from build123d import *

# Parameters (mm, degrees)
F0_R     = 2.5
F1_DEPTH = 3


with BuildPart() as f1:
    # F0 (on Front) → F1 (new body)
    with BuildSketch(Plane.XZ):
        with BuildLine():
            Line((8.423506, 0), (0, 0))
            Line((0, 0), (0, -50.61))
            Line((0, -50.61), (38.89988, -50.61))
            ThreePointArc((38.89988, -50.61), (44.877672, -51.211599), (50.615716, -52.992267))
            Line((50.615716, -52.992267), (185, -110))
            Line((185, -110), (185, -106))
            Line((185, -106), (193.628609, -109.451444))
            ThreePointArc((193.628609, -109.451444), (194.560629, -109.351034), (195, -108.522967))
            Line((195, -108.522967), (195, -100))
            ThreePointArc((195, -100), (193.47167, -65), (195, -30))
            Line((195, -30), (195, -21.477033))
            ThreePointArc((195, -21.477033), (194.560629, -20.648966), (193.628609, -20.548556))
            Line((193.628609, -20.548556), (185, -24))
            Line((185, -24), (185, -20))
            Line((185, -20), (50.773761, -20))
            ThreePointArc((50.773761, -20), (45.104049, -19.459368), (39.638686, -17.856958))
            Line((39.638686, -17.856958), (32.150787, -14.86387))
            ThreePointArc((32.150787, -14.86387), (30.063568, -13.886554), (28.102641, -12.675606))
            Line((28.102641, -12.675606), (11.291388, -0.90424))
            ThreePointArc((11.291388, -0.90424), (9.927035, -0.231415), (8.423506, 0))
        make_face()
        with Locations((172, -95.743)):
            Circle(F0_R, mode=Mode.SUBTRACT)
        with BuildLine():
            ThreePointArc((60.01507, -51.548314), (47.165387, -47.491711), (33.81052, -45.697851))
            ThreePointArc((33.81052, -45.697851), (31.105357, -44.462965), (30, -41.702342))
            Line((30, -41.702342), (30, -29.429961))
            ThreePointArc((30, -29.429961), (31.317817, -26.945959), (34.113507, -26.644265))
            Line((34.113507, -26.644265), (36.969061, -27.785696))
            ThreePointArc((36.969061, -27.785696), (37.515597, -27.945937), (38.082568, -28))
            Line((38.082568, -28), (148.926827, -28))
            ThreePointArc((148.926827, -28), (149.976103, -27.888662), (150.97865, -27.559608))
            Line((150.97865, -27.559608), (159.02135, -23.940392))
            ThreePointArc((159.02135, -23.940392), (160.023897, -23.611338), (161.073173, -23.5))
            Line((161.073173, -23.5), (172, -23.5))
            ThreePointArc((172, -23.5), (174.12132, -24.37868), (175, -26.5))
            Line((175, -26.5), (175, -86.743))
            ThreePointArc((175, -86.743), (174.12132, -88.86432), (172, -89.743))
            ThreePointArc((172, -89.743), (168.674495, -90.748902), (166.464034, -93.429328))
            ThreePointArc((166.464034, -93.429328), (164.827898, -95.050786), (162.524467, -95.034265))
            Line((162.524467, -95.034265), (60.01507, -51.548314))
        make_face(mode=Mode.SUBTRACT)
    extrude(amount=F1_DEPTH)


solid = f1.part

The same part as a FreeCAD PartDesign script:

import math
import FreeCAD as App
import Part
import Sketcher
from FreeCAD import Vector
Q = App.Units.Quantity

doc = App.newDocument("Part")
params = doc.addObject("Spreadsheet::Sheet", "Params")
for row, (alias, value) in enumerate([
    ("sketch1_diameter", "5 mm"),
    ("sketch1_radius", "1.000001 mm"),
    ("sketch1_radius2", "1.000001 mm"),
    ("sketch1_radius3", "4 mm"),
    ("sketch1_radius4", "2.999999 mm"),
    ("pad1_length", "3 mm"),
], start=1):
    params.set(f"A{row}", alias)
    params.set(f"B{row}", "=" + value)
    params.setAlias(f"B{row}", alias)

body = doc.addObject("PartDesign::Body", "Body")

# Sketch on XZ plane
sketch1 = doc.addObject("Sketcher::SketchObject", "Sketch")
body.addObject(sketch1)
sketch1.AttachmentSupport = (doc.XZ_Plane, [""])
sketch1.MapMode = "FlatFace"
sketch1.addGeometry([
    Part.LineSegment(Vector(8.423506, 0, 0), Vector(0, 0, 0)),  # 0
    Part.LineSegment(Vector(0, 0, 0), Vector(0, -50.61, 0)),  # 1
    Part.LineSegment(Vector(0, -50.61, 0), Vector(38.89988, -50.61, 0)),  # 2
    Part.ArcOfCircle(Part.Circle(Vector(38.899877, -80.610013, 0), Vector(0, 0, 1), 30.000013), math.radians(67.012655), math.radians(89.999994)),  # 3
    Part.LineSegment(Vector(50.615716, -52.992267, 0), Vector(185, -110, 0)),  # 4
    Part.LineSegment(Vector(185, -110, 0), Vector(185, -106, 0)),  # 5
    Part.LineSegment(Vector(185, -106, 0), Vector(193.628609, -109.451444, 0)),  # 6
    Part.ArcOfCircle(Part.Circle(Vector(193.999999, -108.522967, 0), Vector(0, 0, 1), 1.000001), math.radians(-111.801381), math.radians(-0.000023)),  # 7
    Part.LineSegment(Vector(195, -108.522967, 0), Vector(195, -100, 0)),  # 8
    Part.ArcOfCircle(Part.Circle(Vector(595.000068, -65, 0), Vector(0, 0, 1), 401.528398), math.radians(174.999356), math.radians(185.000644)),  # 9
    Part.LineSegment(Vector(195, -30, 0), Vector(195, -21.477033, 0)),  # 10
    Part.ArcOfCircle(Part.Circle(Vector(193.999999, -21.477033, 0), Vector(0, 0, 1), 1.000001), math.radians(0.000023), math.radians(111.801381)),  # 11
    Part.LineSegment(Vector(193.628609, -20.548556, 0), Vector(185, -24, 0)),  # 12
    Part.LineSegment(Vector(185, -24, 0), Vector(185, -20, 0)),  # 13
    Part.LineSegment(Vector(185, -20, 0), Vector(50.773761, -20, 0)),  # 14
    Part.ArcOfCircle(Part.Circle(Vector(50.773762, 10.000005, 0), Vector(0, 0, 1), 30.000005), math.radians(-111.787739), math.radians(-90.000001)),  # 15
    Part.LineSegment(Vector(39.638686, -17.856958, 0), Vector(32.150787, -14.86387, 0)),  # 16
    Part.ArcOfCircle(Part.Circle(Vector(39.574164, 3.70743, 0), Vector(0, 0, 1), 19.999992), math.radians(-124.999995), math.radians(-111.78773)),  # 17
    Part.LineSegment(Vector(28.102641, -12.675606, 0), Vector(11.291388, -0.90424, 0)),  # 18
    Part.ArcOfCircle(Part.Circle(Vector(8.423508, -4.999992, 0), Vector(0, 0, 1), 4.999992), math.radians(54.999967), math.radians(90.000023)),  # 19
    Part.Circle(Vector(172, -95.743, 0), Vector(0, 0, 1), 2.5),  # 20
    Part.LineSegment(Vector(162.524467, -95.034265, 0), Vector(60.01507, -51.548314, 0)),  # 21
    Part.ArcOfCircle(Part.Circle(Vector(30.100718, -123.925312, 0), Vector(0, 0, 1), 78.315377), math.radians(67.544058), math.radians(87.284881)),  # 22
    Part.ArcOfCircle(Part.Circle(Vector(34, -41.702342, 0), Vector(0, 0, 1), 4), math.radians(-179.999995), math.radians(-92.715113)),  # 23
    Part.LineSegment(Vector(30, -41.702342, 0), Vector(30, -29.429961, 0)),  # 24
    Part.ArcOfCircle(Part.Circle(Vector(32.999999, -29.429959, 0), Vector(0, 0, 1), 2.999999), math.radians(68.212236), math.radians(180.000033)),  # 25
    Part.LineSegment(Vector(34.113507, -26.644265, 0), Vector(36.969061, -27.785696, 0)),  # 26
    Part.ArcOfCircle(Part.Circle(Vector(38.082566, -25.000008, 0), Vector(0, 0, 1), 2.999992), math.radians(-111.78776), math.radians(-89.99997)),  # 27
    Part.LineSegment(Vector(38.082568, -28, 0), Vector(148.926827, -28, 0)),  # 28
    Part.ArcOfCircle(Part.Circle(Vector(148.926823, -22.999977, 0), Vector(0, 0, 1), 5.000023), math.radians(-89.999952), math.radians(-65.772323)),  # 29
    Part.LineSegment(Vector(150.97865, -27.559608, 0), Vector(159.02135, -23.940392, 0)),  # 30
    Part.ArcOfCircle(Part.Circle(Vector(161.073177, -28.500023, 0), Vector(0, 0, 1), 5.000023), math.radians(90.000048), math.radians(114.227677)),  # 31
    Part.LineSegment(Vector(161.073173, -23.5, 0), Vector(172, -23.5, 0)),  # 32
    Part.ArcOfCircle(Part.Circle(Vector(171.999999, -26.500001, 0), Vector(0, 0, 1), 3.000001), math.radians(0.000022), math.radians(89.999978)),  # 33
    Part.LineSegment(Vector(175, -26.5, 0), Vector(175, -86.743, 0)),  # 34
    Part.ArcOfCircle(Part.Circle(Vector(171.999999, -86.742999, 0), Vector(0, 0, 1), 3.000001), math.radians(-89.999978), math.radians(-0.000022)),  # 35
    Part.ArcOfCircle(Part.Circle(Vector(172, -95.743, 0), Vector(0, 0, 1), 6), math.radians(90.000003), math.radians(157.31826)),  # 36
    Part.ArcOfCircle(Part.Circle(Vector(163.69605, -92.27249, 0), Vector(0, 0, 1), 3.000002), math.radians(-112.987327), math.radians(-22.681772)),  # 37
], False)
sketch1.addConstraint([
    Sketcher.Constraint("Coincident", 0, 2, 1, 1),
    Sketcher.Constraint("Coincident", 1, 2, 2, 1),
    Sketcher.Constraint("Coincident", 2, 2, 3, 2),
    Sketcher.Constraint("Coincident", 3, 1, 4, 1),
    Sketcher.Constraint("Coincident", 4, 2, 5, 1),
    Sketcher.Constraint("Coincident", 5, 2, 6, 1),
    Sketcher.Constraint("Coincident", 6, 2, 7, 1),
    Sketcher.Constraint("Coincident", 7, 2, 8, 1),
    Sketcher.Constraint("Coincident", 8, 2, 9, 2),
    Sketcher.Constraint("Coincident", 9, 1, 10, 1),
    Sketcher.Constraint("Coincident", 10, 2, 11, 1),
    Sketcher.Constraint("Coincident", 11, 2, 12, 1),
    Sketcher.Constraint("Coincident", 12, 2, 13, 1),
    Sketcher.Constraint("Coincident", 13, 2, 14, 1),
    Sketcher.Constraint("Coincident", 14, 2, 15, 2),
    Sketcher.Constraint("Coincident", 15, 1, 16, 1),
    Sketcher.Constraint("Coincident", 16, 2, 17, 2),
    Sketcher.Constraint("Coincident", 17, 1, 18, 1),
    Sketcher.Constraint("Coincident", 18, 2, 19, 1),
    Sketcher.Constraint("Coincident", 19, 2, 0, 1),
    Sketcher.Constraint("Coincident", 21, 2, 22, 1),
    Sketcher.Constraint("Coincident", 22, 2, 23, 2),
    Sketcher.Constraint("Coincident", 23, 1, 24, 1),
    Sketcher.Constraint("Coincident", 24, 2, 25, 2),
    Sketcher.Constraint("Coincident", 25, 1, 26, 1),
    Sketcher.Constraint("Coincident", 26, 2, 27, 1),
    Sketcher.Constraint("Coincident", 27, 2, 28, 1),
    Sketcher.Constraint("Coincident", 28, 2, 29, 1),
    Sketcher.Constraint("Coincident", 29, 2, 30, 1),
    Sketcher.Constraint("Coincident", 30, 2, 31, 2),
    Sketcher.Constraint("Coincident", 31, 1, 32, 1),
    Sketcher.Constraint("Coincident", 32, 2, 33, 2),
    Sketcher.Constraint("Coincident", 33, 1, 34, 1),
    Sketcher.Constraint("Coincident", 34, 2, 35, 2),
    Sketcher.Constraint("Coincident", 35, 1, 36, 1),
    Sketcher.Constraint("Coincident", 36, 2, 37, 2),
    Sketcher.Constraint("Coincident", 37, 1, 21, 1),
    Sketcher.Constraint("Horizontal", 0),
    Sketcher.Constraint("Vertical", 1),
    Sketcher.Constraint("Horizontal", 2),
    Sketcher.Constraint("Vertical", 5),
    Sketcher.Constraint("Vertical", 8),
    Sketcher.Constraint("Vertical", 10),
    Sketcher.Constraint("Vertical", 13),
    Sketcher.Constraint("Horizontal", 14),
    Sketcher.Constraint("Vertical", 24),
    Sketcher.Constraint("Horizontal", 28),
    Sketcher.Constraint("Horizontal", 32),
    Sketcher.Constraint("Vertical", 34),
    Sketcher.Constraint("Coincident", 0, 2, -1, 1),
    Sketcher.Constraint("Coincident", 36, 3, 20, 3),
    Sketcher.Constraint("Diameter", 20, Q("5 mm")),
    Sketcher.Constraint("Radius", 7, Q("1.000001 mm")),
    Sketcher.Constraint("Radius", 11, Q("1.000001 mm")),
    Sketcher.Constraint("Radius", 23, Q("4 mm")),
    Sketcher.Constraint("Radius", 25, Q("2.999999 mm")),
    Sketcher.Constraint("Radius", 33, Q("3.000001 mm")),
    Sketcher.Constraint("Radius", 35, Q("3.000001 mm")),
    Sketcher.Constraint("Radius", 36, Q("6 mm")),
    Sketcher.Constraint("Radius", 37, Q("3.000002 mm")),
    Sketcher.Constraint("DistanceY", 5, 1, 5, 2, Q("4 mm")),
    Sketcher.Constraint("DistanceY", 13, 1, 13, 2, Q("4 mm")),
    Sketcher.Constraint("DistanceX", -1, 1, 7, 3, Q("193.999999 mm")),
    Sketcher.Constraint("DistanceY", 9, 3, -1, 1, Q("65 mm")),
    Sketcher.Constraint("DistanceX", -1, 1, 11, 3, Q("193.999999 mm")),
    Sketcher.Constraint("DistanceX", -1, 1, 20, 3, Q("172 mm")),
    Sketcher.Constraint("DistanceX", -1, 1, 23, 3, Q("34 mm")),
    Sketcher.Constraint("DistanceX", -1, 1, 33, 3, Q("171.999999 mm")),
    Sketcher.Constraint("DistanceX", -1, 1, 4, 2, Q("185 mm")),
    Sketcher.Constraint("DistanceY", 4, 2, -1, 1, Q("110 mm")),
    Sketcher.Constraint("DistanceY", 8, 2, -1, 1, Q("100 mm")),
    Sketcher.Constraint("DistanceX", -1, 1, 12, 2, Q("185 mm")),
    Sketcher.Constraint("DistanceY", 12, 2, -1, 1, Q("24 mm")),
    Sketcher.Constraint("DistanceY", 27, 2, -1, 1, Q("28 mm")),
    Sketcher.Constraint("DistanceX", -1, 1, 32, 2, Q("172 mm")),
    Sketcher.Constraint("DistanceX", -1, 1, 35, 1, Q("172 mm")),
    Sketcher.Constraint("DistanceY", 33, 1, 32, 2, Q("3 mm")),
    Sketcher.Constraint("DistanceY", 20, 3, 34, 2, Q("9 mm")),
    Sketcher.Constraint("DistanceY", 1, 2, 1, 1, Q("50.61 mm")),
    Sketcher.Constraint("DistanceY", 33, 3, -1, 1, Q("26.500001 mm")),
    Sketcher.Constraint("DistanceY", 34, 2, 34, 1, Q("60.243 mm")),
    Sketcher.Constraint("Radius", 27, Q("2.999992 mm")),
    Sketcher.Constraint("Radius", 3, Q("30.000013 mm")),
    Sketcher.Constraint("Radius", 9, Q("401.528398 mm")),
    Sketcher.Constraint("Radius", 15, Q("30.000005 mm")),
    Sketcher.Constraint("Radius", 17, Q("19.999992 mm")),
    Sketcher.Constraint("Radius", 19, Q("4.999992 mm")),
    Sketcher.Constraint("Radius", 22, Q("78.315377 mm")),
    Sketcher.Constraint("Radius", 29, Q("5.000023 mm")),
    Sketcher.Constraint("Radius", 31, Q("5.000023 mm")),
    Sketcher.Constraint("DistanceY", 25, 3, 15, 1, Q("11.573001 mm")),
    Sketcher.Constraint("DistanceX", 2, 1, 2, 2, Q("38.89988 mm")),
    Sketcher.Constraint("DistanceX", 14, 2, 14, 1, Q("134.226239 mm")),
    Sketcher.Constraint("DistanceX", 28, 1, 28, 2, Q("110.844259 mm")),
    Sketcher.Constraint("DistanceY", 24, 1, 24, 2, Q("12.272381 mm")),
    Sketcher.Constraint("DistanceY", 22, 3, 3, 3, Q("43.315299 mm")),
    Sketcher.Constraint("DistanceX", 16, 2, 15, 1, Q("7.487899 mm")),
    Sketcher.Constraint("DistanceY", 16, 2, 17, 3, Q("18.5713 mm")),
    Sketcher.Constraint("DistanceX", 18, 2, 16, 2, Q("20.859399 mm")),
    Sketcher.Constraint("DistanceX", 29, 2, 30, 2, Q("8.0427 mm")),
    Sketcher.Constraint("Distance", 18, Q("20.52275 mm")),
    Sketcher.Constraint("Distance", 30, Q("8.819509 mm")),
    Sketcher.Constraint("DistanceX", 0, 2, 0, 1, Q("8.423506 mm")),
    Sketcher.Constraint("DistanceX", 32, 1, 32, 2, Q("10.926827 mm")),
    Sketcher.Constraint("DistanceY", 8, 1, 8, 2, Q("8.522967 mm")),
    Sketcher.Constraint("DistanceY", 10, 1, 10, 2, Q("8.522967 mm")),
    Sketcher.Constraint("DistanceX", -1, 1, 15, 3, Q("50.773762 mm")),
    Sketcher.Constraint("DistanceY", -1, 1, 17, 3, Q("3.70743 mm")),
    Sketcher.Constraint("DistanceX", -1, 1, 19, 3, Q("8.423508 mm")),
    Sketcher.Constraint("DistanceX", -1, 1, 22, 3, Q("30.100718 mm")),
    Sketcher.Constraint("DistanceY", 25, 3, -1, 1, Q("29.429959 mm")),
    Sketcher.Constraint("DistanceX", -1, 1, 37, 3, Q("163.69605 mm")),
    Sketcher.Constraint("DistanceX", -1, 1, 6, 2, Q("193.628609 mm")),
    Sketcher.Constraint("DistanceX", -1, 1, 11, 2, Q("193.628609 mm")),
    Sketcher.Constraint("DistanceX", -1, 1, 21, 2, Q("60.01507 mm")),
    Sketcher.Constraint("DistanceX", -1, 1, 22, 2, Q("33.81052 mm")),
    Sketcher.Constraint("DistanceY", 24, 2, -1, 1, Q("29.429961 mm")),
    Sketcher.Constraint("DistanceX", -1, 1, 26, 2, Q("36.969061 mm")),
    Sketcher.Constraint("DistanceX", -1, 1, 27, 2, Q("38.082568 mm")),
    Sketcher.Constraint("DistanceX", -1, 1, 29, 2, Q("150.97865 mm")),
    Sketcher.Constraint("DistanceY", 29, 2, -1, 1, Q("27.559608 mm")),
    Sketcher.Constraint("DistanceX", 3, 3, 9, 3, Q("556.100191 mm")),
    Sketcher.Constraint("DistanceY", 3, 3, 11, 3, Q("59.13298 mm")),
    Sketcher.Constraint("DistanceY", 7, 3, 15, 3, Q("118.522971 mm")),
    Sketcher.Constraint("DistanceX", 19, 3, 27, 3, Q("29.659058 mm")),
    Sketcher.Constraint("DistanceX", 3, 3, 3, 1, Q("11.715839 mm")),
    Sketcher.Constraint("DistanceX", 25, 3, 25, 1, Q("1.113508 mm")),
    Sketcher.Constraint("DistanceY", 36, 2, 37, 3, Q("1.156838 mm")),
    Sketcher.Constraint("Distance", 21, Q("111.351715 mm")),
])
sketch1.setExpression("Constraints[51]", "Params.sketch1_diameter")
sketch1.setExpression("Constraints[52]", "Params.sketch1_radius")
sketch1.setExpression("Constraints[53]", "Params.sketch1_radius2")
sketch1.setExpression("Constraints[54]", "Params.sketch1_radius3")
sketch1.setExpression("Constraints[55]", "Params.sketch1_radius4")
pad1 = doc.addObject("PartDesign::Pad", "Pad")
body.addObject(pad1)
pad1.Profile = sketch1
pad1.setExpression("Length", "Params.pad1_length")

doc.recompute()
